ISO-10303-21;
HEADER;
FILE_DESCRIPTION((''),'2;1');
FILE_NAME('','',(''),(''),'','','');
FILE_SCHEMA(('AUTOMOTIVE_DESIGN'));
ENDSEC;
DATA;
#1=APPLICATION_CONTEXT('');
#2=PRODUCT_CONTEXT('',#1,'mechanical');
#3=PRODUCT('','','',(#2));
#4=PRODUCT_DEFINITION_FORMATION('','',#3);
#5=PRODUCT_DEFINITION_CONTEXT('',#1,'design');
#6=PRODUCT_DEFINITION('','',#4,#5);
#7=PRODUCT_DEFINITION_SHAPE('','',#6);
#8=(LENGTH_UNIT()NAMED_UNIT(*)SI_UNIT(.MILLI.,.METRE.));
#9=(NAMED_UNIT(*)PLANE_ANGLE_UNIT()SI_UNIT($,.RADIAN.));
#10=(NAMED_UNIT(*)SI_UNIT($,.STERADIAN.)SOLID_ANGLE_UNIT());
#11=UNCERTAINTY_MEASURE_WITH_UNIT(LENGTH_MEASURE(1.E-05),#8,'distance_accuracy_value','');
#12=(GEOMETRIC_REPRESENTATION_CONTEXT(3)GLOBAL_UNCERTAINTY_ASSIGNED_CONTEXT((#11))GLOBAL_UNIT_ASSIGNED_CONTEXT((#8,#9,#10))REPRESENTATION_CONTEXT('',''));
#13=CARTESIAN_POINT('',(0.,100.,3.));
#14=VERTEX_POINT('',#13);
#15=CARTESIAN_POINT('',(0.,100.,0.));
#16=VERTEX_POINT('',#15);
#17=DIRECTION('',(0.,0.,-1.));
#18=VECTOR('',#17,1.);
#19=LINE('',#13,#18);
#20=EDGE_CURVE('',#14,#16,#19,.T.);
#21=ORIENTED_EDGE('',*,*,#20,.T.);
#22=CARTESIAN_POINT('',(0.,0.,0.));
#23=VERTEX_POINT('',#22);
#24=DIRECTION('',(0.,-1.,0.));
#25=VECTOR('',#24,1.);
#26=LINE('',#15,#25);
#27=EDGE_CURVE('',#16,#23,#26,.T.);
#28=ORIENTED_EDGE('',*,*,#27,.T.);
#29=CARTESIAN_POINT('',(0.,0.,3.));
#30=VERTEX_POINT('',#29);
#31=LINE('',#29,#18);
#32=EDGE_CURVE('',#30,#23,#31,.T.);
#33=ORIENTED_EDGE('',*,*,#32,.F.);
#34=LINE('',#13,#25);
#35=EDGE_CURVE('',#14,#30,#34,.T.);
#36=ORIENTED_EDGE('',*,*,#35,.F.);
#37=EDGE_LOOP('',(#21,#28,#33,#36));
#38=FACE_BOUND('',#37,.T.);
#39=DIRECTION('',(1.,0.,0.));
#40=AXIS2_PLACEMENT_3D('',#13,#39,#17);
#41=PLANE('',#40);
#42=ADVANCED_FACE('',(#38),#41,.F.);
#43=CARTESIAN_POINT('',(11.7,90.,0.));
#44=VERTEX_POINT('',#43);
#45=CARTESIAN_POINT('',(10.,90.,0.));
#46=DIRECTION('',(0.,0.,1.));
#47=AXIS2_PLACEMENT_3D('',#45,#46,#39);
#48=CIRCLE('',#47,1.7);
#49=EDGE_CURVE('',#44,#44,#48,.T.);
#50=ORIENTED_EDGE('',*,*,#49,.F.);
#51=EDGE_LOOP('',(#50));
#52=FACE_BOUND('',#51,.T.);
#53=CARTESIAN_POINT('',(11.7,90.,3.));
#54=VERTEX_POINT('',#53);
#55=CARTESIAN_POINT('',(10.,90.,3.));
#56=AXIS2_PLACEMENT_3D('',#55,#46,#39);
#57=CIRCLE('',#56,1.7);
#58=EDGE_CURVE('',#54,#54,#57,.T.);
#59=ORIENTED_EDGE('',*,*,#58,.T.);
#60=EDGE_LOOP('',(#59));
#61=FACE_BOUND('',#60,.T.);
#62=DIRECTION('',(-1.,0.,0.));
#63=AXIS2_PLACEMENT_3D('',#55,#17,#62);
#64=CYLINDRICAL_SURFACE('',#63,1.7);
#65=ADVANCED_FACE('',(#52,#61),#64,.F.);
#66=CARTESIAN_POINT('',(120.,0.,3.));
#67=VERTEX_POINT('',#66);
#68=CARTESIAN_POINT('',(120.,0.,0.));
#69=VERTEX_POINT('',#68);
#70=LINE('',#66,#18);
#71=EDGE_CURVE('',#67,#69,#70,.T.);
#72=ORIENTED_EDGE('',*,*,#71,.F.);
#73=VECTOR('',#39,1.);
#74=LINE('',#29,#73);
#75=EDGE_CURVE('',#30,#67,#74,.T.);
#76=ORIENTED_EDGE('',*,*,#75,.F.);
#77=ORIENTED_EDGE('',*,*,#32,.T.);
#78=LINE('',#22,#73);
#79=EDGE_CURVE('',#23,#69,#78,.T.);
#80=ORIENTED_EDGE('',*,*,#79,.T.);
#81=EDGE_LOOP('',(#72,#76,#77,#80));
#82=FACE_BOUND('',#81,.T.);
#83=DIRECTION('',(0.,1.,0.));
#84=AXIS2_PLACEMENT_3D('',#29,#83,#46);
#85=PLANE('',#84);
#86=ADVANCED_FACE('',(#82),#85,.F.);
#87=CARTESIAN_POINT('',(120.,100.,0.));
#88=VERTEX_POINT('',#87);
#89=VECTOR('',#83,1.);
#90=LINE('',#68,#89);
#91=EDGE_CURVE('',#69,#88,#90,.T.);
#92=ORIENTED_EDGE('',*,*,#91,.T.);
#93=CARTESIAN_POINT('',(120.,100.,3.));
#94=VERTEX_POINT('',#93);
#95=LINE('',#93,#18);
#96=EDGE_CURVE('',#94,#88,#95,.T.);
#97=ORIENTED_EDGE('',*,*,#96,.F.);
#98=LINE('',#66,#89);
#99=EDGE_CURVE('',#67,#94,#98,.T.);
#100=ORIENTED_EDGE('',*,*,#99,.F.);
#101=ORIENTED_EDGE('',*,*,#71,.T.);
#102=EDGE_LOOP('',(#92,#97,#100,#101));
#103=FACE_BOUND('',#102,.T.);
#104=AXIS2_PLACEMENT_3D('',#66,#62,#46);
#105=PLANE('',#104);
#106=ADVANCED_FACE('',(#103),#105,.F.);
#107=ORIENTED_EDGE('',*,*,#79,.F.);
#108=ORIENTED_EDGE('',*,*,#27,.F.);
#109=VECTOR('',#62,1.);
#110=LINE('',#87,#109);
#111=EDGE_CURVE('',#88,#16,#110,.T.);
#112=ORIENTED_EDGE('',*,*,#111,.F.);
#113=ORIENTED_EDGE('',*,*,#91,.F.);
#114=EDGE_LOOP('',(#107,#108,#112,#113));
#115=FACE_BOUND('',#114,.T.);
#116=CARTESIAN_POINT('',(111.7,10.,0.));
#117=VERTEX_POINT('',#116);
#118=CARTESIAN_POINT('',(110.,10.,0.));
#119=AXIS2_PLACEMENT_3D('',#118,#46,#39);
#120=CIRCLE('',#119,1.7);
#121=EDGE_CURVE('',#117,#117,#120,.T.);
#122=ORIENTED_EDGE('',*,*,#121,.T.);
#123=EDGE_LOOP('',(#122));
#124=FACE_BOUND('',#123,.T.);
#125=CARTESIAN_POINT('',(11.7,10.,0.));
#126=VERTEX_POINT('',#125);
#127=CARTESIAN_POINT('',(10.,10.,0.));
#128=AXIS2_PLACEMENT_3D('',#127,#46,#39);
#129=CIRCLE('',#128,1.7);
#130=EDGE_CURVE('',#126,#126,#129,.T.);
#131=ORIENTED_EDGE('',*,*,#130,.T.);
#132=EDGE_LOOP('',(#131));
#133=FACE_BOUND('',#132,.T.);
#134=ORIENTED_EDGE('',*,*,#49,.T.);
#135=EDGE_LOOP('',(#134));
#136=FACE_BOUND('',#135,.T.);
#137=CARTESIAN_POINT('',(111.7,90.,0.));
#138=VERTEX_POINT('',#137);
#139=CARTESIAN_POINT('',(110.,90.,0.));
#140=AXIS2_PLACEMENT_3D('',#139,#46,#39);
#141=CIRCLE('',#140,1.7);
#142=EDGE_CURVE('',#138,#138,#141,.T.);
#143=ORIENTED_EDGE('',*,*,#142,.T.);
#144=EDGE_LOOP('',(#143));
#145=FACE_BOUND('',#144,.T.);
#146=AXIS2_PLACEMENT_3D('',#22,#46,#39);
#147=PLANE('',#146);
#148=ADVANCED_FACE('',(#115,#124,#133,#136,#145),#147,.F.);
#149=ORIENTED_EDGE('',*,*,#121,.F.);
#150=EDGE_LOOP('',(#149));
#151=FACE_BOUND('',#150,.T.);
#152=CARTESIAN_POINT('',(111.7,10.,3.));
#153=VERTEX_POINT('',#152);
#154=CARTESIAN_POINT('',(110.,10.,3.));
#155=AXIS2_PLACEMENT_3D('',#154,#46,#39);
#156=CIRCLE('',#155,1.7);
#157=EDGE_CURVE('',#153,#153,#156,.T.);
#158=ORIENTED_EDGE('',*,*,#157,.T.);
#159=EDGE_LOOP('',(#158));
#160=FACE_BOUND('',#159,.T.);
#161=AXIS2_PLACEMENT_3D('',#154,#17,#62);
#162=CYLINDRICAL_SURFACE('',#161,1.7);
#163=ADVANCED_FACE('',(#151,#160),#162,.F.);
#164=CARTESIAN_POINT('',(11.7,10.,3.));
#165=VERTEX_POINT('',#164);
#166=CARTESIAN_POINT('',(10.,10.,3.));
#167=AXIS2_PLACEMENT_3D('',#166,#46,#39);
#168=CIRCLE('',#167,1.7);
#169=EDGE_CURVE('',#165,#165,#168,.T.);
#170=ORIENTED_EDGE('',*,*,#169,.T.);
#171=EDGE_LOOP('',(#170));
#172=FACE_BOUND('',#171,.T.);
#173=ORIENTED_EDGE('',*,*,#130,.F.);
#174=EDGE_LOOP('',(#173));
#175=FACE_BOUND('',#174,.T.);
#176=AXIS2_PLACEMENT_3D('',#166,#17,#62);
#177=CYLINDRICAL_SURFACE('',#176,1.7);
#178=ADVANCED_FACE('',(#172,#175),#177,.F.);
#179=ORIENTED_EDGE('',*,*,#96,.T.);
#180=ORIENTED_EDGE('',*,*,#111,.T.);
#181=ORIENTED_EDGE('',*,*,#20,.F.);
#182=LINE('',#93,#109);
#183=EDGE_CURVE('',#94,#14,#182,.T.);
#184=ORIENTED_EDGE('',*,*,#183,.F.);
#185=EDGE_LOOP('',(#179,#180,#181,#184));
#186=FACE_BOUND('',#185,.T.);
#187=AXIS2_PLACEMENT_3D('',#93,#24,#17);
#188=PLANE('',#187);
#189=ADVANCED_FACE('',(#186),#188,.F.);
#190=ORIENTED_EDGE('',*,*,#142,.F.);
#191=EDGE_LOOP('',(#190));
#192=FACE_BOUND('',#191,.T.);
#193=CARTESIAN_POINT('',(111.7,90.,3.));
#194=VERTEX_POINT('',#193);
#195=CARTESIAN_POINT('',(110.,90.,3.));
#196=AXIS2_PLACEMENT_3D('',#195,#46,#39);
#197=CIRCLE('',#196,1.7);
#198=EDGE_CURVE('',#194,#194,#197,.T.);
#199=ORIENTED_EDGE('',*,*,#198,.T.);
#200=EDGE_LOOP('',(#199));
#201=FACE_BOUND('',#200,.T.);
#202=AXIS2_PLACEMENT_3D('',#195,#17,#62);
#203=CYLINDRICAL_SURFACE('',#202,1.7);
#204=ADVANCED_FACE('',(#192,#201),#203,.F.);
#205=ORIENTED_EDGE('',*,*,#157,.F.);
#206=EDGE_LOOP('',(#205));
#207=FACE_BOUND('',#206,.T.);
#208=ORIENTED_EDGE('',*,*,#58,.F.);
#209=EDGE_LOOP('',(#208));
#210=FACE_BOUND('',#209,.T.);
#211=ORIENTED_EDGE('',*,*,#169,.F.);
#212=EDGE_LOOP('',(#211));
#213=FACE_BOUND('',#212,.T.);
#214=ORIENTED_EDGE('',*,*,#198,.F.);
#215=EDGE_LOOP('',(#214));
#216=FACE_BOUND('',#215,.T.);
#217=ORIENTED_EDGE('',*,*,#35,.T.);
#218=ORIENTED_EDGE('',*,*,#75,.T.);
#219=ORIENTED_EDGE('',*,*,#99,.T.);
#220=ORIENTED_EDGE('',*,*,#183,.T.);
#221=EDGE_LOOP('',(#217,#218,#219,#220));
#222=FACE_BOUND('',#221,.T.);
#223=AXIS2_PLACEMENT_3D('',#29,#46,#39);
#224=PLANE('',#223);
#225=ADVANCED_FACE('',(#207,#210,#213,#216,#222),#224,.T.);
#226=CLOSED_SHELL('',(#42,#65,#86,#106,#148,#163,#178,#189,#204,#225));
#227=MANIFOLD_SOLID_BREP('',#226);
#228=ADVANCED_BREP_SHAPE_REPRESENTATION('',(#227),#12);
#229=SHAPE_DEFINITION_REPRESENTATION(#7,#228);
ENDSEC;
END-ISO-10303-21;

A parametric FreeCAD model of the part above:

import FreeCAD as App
import Part
import Sketcher
Q = App.Units.Quantity


def add_polygon(sketch, points):
    """Adds a closed chain of lines whose ends are joined by coincident constraints."""
    first, n = sketch.GeometryCount, len(points)
    for a, b in zip(points, points[1:] + points[:1]):
        sketch.addGeometry(Part.LineSegment(App.Vector(*a, 0), App.Vector(*b, 0)), False)
    for i in range(n):
        sketch.addConstraint(Sketcher.Constraint("Coincident", first + i, 2, first + (i + 1) % n, 1))

doc = App.newDocument("Part")
body = doc.addObject("PartDesign::Body", "Body")

# Sketch on XY plane
sketch1 = body.newObject("Sketcher::SketchObject", "Sketch")
sketch1.AttachmentSupport = (doc.getObject("XY_Plane"), [""])
sketch1.MapMode = "FlatFace"
add_polygon(sketch1, [(0, 100), (0, 0), (120, 0), (120, 100)])  # lines 0-3
sketch1.addGeometry(Part.Circle(App.Vector(10, 10, 0), App.Vector(0, 0, 1), 1.7), False)  # 4
sketch1.addGeometry(Part.Circle(App.Vector(110, 10, 0), App.Vector(0, 0, 1), 1.7), False)  # 5
sketch1.addGeometry(Part.Circle(App.Vector(10, 90, 0), App.Vector(0, 0, 1), 1.7), False)  # 6
sketch1.addGeometry(Part.Circle(App.Vector(110, 90, 0), App.Vector(0, 0, 1), 1.7), False)  # 7
sketch1.addConstraint([
    Sketcher.Constraint("Vertical", 0),
    Sketcher.Constraint("Horizontal", 1),
    Sketcher.Constraint("Vertical", 2),
    Sketcher.Constraint("Horizontal", 3),
    Sketcher.Constraint("Coincident", 0, 2, -1, 1),
    Sketcher.Constraint("Equal", 4, 5),
    Sketcher.Constraint("Equal", 5, 6),
    Sketcher.Constraint("Equal", 6, 7),
    Sketcher.Constraint("Horizontal", 4, 3, 5, 3),
    Sketcher.Constraint("Horizontal", 6, 3, 7, 3),
    Sketcher.Constraint("Vertical", 4, 3, 6, 3),
    Sketcher.Constraint("Vertical", 5, 3, 7, 3),
    Sketcher.Constraint("Diameter", 4, Q("3.4 mm")),
    Sketcher.Constraint("DistanceX", 1, 1, 1, 2, Q("120 mm")),
    Sketcher.Constraint("DistanceY", 0, 2, 0, 1, Q("100 mm")),
    Sketcher.Constraint("DistanceX", -1, 1, 4, 3, Q("10 mm")),
    Sketcher.Constraint("DistanceY", -1, 1, 4, 3, Q("10 mm")),
    Sketcher.Constraint("DistanceX", -1, 1, 5, 3, Q("110 mm")),
    Sketcher.Constraint("DistanceY", -1, 1, 6, 3, Q("90 mm")),
])
pad1 = body.newObject("PartDesign::Pad", "Pad")
pad1.Profile = sketch1
pad1.Length = 3

doc.recompute()
